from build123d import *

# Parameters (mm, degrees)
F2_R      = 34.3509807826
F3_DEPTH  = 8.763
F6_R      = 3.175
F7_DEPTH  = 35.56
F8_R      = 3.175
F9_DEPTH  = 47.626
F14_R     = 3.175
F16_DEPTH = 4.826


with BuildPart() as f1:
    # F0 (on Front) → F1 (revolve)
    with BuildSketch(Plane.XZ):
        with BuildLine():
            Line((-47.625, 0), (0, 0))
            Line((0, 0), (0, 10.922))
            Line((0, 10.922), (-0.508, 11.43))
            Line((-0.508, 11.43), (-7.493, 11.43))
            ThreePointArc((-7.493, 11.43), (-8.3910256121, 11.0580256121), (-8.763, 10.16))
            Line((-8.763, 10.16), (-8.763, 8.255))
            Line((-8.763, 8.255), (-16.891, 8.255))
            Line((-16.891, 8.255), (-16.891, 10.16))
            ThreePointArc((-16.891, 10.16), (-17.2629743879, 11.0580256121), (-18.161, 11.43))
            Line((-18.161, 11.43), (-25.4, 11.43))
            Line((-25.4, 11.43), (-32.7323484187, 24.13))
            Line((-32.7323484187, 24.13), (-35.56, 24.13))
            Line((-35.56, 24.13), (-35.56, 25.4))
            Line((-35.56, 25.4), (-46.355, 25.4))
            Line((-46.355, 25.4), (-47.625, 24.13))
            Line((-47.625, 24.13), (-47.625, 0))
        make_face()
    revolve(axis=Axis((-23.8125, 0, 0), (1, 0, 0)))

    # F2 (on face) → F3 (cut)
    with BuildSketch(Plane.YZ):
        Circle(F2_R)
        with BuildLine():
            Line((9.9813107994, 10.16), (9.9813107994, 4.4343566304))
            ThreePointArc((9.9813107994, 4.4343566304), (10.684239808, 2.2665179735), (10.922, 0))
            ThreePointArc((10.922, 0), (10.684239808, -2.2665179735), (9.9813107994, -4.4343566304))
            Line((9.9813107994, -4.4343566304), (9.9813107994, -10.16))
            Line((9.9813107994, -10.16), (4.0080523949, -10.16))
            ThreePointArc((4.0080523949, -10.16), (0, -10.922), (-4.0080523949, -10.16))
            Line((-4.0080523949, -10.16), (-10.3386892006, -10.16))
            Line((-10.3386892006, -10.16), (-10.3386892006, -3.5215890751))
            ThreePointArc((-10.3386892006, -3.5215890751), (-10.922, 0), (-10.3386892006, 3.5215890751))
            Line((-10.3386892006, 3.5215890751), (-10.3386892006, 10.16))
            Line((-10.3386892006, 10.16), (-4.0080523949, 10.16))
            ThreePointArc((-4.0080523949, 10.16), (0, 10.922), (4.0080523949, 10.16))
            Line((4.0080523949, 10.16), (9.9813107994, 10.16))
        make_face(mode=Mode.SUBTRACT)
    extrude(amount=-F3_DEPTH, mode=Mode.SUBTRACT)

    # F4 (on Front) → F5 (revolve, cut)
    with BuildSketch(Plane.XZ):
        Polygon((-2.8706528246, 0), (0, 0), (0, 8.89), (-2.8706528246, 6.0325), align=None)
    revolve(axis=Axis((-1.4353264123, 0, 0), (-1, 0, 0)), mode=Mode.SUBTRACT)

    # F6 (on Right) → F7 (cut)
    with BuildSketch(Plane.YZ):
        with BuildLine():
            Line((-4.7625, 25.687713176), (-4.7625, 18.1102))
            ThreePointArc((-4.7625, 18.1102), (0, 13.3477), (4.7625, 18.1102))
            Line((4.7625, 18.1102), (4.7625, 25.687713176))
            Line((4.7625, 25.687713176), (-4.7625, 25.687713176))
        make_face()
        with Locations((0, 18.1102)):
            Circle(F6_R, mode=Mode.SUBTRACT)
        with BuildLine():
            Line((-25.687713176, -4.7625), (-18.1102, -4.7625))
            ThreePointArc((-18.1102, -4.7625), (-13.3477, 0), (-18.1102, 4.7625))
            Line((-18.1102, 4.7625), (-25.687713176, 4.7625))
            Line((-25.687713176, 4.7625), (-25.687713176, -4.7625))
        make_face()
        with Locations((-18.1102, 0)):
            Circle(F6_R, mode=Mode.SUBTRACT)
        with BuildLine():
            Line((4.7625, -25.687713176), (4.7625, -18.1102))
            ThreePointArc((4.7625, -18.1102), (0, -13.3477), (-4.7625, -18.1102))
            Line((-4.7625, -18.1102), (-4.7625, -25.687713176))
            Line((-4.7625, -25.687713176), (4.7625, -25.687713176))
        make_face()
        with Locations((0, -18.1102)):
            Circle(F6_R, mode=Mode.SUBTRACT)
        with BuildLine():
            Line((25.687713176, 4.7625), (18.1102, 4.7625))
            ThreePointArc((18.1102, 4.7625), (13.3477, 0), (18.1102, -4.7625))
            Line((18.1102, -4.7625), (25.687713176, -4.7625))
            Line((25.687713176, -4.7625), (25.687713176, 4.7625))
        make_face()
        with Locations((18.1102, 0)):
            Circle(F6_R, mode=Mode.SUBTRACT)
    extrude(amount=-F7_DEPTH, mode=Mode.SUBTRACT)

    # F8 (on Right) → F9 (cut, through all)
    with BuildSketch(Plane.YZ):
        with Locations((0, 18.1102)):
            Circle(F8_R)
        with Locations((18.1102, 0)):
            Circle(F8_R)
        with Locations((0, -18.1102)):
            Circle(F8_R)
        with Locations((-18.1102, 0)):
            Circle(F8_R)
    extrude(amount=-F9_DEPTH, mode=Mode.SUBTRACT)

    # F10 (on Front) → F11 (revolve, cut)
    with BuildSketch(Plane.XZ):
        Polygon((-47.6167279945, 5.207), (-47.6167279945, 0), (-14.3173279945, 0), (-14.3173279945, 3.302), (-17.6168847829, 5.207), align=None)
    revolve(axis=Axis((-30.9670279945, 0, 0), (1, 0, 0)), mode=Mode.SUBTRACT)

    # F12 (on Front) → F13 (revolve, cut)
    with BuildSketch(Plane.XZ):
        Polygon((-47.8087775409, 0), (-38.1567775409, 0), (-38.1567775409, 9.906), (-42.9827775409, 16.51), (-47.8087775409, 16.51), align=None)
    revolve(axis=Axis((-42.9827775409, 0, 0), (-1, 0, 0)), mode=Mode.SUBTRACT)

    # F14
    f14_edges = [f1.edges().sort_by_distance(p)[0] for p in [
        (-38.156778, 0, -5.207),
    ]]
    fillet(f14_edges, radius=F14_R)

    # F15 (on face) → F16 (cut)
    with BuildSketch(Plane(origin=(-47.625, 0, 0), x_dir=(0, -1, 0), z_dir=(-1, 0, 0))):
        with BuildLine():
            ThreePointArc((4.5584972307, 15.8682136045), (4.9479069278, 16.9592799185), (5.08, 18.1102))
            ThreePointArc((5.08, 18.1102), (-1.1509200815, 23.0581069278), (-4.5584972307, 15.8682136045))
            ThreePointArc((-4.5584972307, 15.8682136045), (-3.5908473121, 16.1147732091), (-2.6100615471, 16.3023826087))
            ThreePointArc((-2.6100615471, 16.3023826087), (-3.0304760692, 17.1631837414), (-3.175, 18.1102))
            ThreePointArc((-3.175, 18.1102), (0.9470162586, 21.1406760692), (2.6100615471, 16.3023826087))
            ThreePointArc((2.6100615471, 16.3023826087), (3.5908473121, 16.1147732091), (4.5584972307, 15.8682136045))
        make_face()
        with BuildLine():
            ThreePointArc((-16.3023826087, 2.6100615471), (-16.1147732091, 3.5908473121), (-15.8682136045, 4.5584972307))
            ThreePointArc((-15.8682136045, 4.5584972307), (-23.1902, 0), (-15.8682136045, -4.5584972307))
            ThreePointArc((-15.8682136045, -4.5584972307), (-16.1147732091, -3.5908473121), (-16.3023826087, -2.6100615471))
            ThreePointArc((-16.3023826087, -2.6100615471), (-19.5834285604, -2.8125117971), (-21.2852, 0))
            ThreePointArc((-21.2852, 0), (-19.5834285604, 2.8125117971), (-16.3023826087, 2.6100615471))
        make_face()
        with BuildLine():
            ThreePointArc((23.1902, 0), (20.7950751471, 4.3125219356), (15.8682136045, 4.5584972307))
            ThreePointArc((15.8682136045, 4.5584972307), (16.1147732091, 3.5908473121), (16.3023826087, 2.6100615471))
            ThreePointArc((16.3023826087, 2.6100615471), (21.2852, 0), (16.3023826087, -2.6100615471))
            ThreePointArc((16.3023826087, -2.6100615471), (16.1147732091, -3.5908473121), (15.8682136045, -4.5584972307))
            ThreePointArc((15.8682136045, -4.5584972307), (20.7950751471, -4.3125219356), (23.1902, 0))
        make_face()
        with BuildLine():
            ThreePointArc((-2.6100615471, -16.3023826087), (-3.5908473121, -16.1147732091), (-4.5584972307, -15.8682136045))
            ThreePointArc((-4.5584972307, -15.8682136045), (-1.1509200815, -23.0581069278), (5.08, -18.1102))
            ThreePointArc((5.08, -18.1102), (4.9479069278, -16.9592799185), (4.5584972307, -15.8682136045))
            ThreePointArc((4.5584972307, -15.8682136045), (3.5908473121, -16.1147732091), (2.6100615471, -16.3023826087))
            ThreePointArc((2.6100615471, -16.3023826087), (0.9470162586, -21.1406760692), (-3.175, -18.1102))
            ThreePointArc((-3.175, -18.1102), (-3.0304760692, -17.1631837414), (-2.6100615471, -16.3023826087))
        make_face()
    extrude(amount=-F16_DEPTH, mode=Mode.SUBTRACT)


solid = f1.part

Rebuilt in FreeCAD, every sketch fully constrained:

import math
import FreeCAD as App
import Part
import Sketcher

V = App.Vector
Q = App.Units.Quantity


def edges_at(feature, points):
    """Names of the edges that pass closest to the given points."""
    edges = feature.Shape.Edges
    near = lambda p: min(range(len(edges)), key=lambda i: edges[i].distToShape(Part.Vertex(*p))[0])
    return sorted({f"Edge{near(p) + 1}" for p in points})


def add_polygon(sketch, points):
    """Adds a closed chain of lines whose ends are joined by coincident constraints."""
    first, n = sketch.GeometryCount, len(points)
    for a, b in zip(points, points[1:] + points[:1]):
        sketch.addGeometry(Part.LineSegment(App.Vector(*a, 0), App.Vector(*b, 0)), False)
    for i in range(n):
        sketch.addConstraint(Sketcher.Constraint("Coincident", first + i, 2, first + (i + 1) % n, 1))

doc = App.newDocument("Part")
params = doc.addObject("Spreadsheet::Sheet", "Params")
for row, (alias, value) in enumerate([
    ("sketch1_radius", "0.05 in"),
    ("sketch1_width", "0.32 in"),
    ("sketch1_height", "0.43 in"),
    ("sketch1_height2", "0.05 in"),
    ("sketch1_width2", "1.875 in"),
    ("revolution_angle", "360 deg"),
    ("sketch2_radius", "0.43 in"),
    ("pocket1_length", "0.345 in"),
    ("sketch3_height", "0.35 in"),
    ("groove_angle", "360 deg"),
    ("sketch4_diameter", "0.25 in"),
    ("sketch4_radius", "0.1875 in"),
    ("pocket2_length", "1.4 in"),
    ("sketch5_diameter", "0.25 in"),
    ("sketch6_height", "0.13 in"),
    ("sketch6_length", "0.15 in"),
    ("sketch6_width", "1.311 in"),
    ("groove2_angle", "360 deg"),
    ("sketch7_width", "0.38 in"),
    ("sketch7_width2", "0.19 in"),
    ("sketch7_height", "0.39 in"),
    ("sketch7_height2", "0.65 in"),
    ("groove3_angle", "360 deg"),
    ("fillet_radius", "0.125 in"),
    ("sketch8_radius", "0.2 in"),
    ("sketch8_radius2", "0.65 in"),
    ("sketch8_radius3", "0.125 in"),
    ("pocket4_length", "0.19 in"),
], start=1):
    params.set(f"A{row}", alias)
    params.set(f"B{row}", "=" + value)
    params.setAlias(f"B{row}", alias)

body = doc.addObject("PartDesign::Body", "Body")

sketch1 = body.newObject("Sketcher::SketchObject", "Sketch")
sketch1.AttachmentSupport = (doc.getObject("XZ_Plane"), [""])
sketch1.MapMode = "FlatFace"
sketch1.addGeometry(Part.LineSegment(V(-47.625, 0, 0), V(0, 0, 0)), False)
sketch1.addGeometry(Part.LineSegment(V(0, 0, 0), V(0, 10.922, 0)), False)
sketch1.addGeometry(Part.LineSegment(V(0, 10.922, 0), V(-0.508, 11.43, 0)), False)
sketch1.addGeometry(Part.LineSegment(V(-0.508, 11.43, 0), V(-7.493, 11.43, 0)), False)
sketch1.addGeometry(Part.ArcOfCircle(Part.Circle(V(-7.493, 10.16, 0), V(0, 0, 1), 1.27), math.radians(90), math.radians(180)), False)
sketch1.addGeometry(Part.LineSegment(V(-8.763, 10.16, 0), V(-8.763, 8.255, 0)), False)
sketch1.addGeometry(Part.LineSegment(V(-8.763, 8.255, 0), V(-16.891, 8.255, 0)), False)
sketch1.addGeometry(Part.LineSegment(V(-16.891, 8.255, 0), V(-16.891, 10.16, 0)), False)
sketch1.addGeometry(Part.ArcOfCircle(Part.Circle(V(-18.161, 10.16, 0), V(0, 0, 1), 1.27), math.radians(0), math.radians(90)), False)
sketch1.addGeometry(Part.LineSegment(V(-18.161, 11.43, 0), V(-25.4, 11.43, 0)), False)
sketch1.addGeometry(Part.LineSegment(V(-25.4, 11.43, 0), V(-32.732348, 24.13, 0)), False)
sketch1.addGeometry(Part.LineSegment(V(-32.732348, 24.13, 0), V(-35.56, 24.13, 0)), False)
sketch1.addGeometry(Part.LineSegment(V(-35.56, 24.13, 0), V(-35.56, 25.4, 0)), False)
sketch1.addGeometry(Part.LineSegment(V(-35.56, 25.4, 0), V(-46.355, 25.4, 0)), False)
sketch1.addGeometry(Part.LineSegment(V(-46.355, 25.4, 0), V(-47.625, 24.13, 0)), False)
sketch1.addGeometry(Part.LineSegment(V(-47.625, 24.13, 0), V(-47.625, 0, 0)), False)
sketch1.addConstraint(Sketcher.Constraint("Coincident", 0, 2, 1, 1))
sketch1.addConstraint(Sketcher.Constraint("Coincident", 1, 2, 2, 1))
sketch1.addConstraint(Sketcher.Constraint("Coincident", 2, 2, 3, 1))
sketch1.addConstraint(Sketcher.Constraint("Tangent", 3, 2, 4, 1))
sketch1.addConstraint(Sketcher.Constraint("Tangent", 4, 2, 5, 1))
sketch1.addConstraint(Sketcher.Constraint("Coincident", 5, 2, 6, 1))
sketch1.addConstraint(Sketcher.Constraint("Coincident", 6, 2, 7, 1))
sketch1.addConstraint(Sketcher.Constraint("Tangent", 7, 2, 8, 1))
sketch1.addConstraint(Sketcher.Constraint("Tangent", 8, 2, 9, 1))
sketch1.addConstraint(Sketcher.Constraint("Coincident", 9, 2, 10, 1))
sketch1.addConstraint(Sketcher.Constraint("Coincident", 10, 2, 11, 1))
sketch1.addConstraint(Sketcher.Constraint("Coincident", 11, 2, 12, 1))
sketch1.addConstraint(Sketcher.Constraint("Coincident", 12, 2, 13, 1))
sketch1.addConstraint(Sketcher.Constraint("Coincident", 13, 2, 14, 1))
sketch1.addConstraint(Sketcher.Constraint("Coincident", 14, 2, 15, 1))
sketch1.addConstraint(Sketcher.Constraint("Coincident", 15, 2, 0, 1))
sketch1.addConstraint(Sketcher.Constraint("Horizontal", 0))
sketch1.addConstraint(Sketcher.Constraint("Vertical", 1))
sketch1.addConstraint(Sketcher.Constraint("Horizontal", 3))
sketch1.addConstraint(Sketcher.Constraint("Vertical", 5))
sketch1.addConstraint(Sketcher.Constraint("Horizontal", 6))
sketch1.addConstraint(Sketcher.Constraint("Vertical", 7))
sketch1.addConstraint(Sketcher.Constraint("Horizontal", 9))
sketch1.addConstraint(Sketcher.Constraint("Horizontal", 11))
sketch1.addConstraint(Sketcher.Constraint("Vertical", 12))
sketch1.addConstraint(Sketcher.Constraint("Horizontal", 13))
sketch1.addConstraint(Sketcher.Constraint("Vertical", 15))
sketch1.addConstraint(Sketcher.Constraint("Coincident", 0, 2, -1, 1))
sketch1.addConstraint(Sketcher.Constraint("Equal", 4, 8))
sketch1.addConstraint(Sketcher.Constraint("Perpendicular", 2, 14))
sketch1.addConstraint(Sketcher.Constraint("Horizontal", 4, 3, 8, 3))
sketch1.addConstraint(Sketcher.Constraint("Horizontal", 11, 2, 14, 2))
sketch1.addConstraint(Sketcher.Constraint("Radius", 4, Q("0.05 in")))
sketch1.addConstraint(Sketcher.Constraint("DistanceX", 9, 2, -1, 1, Q("1 in")))
sketch1.addConstraint(Sketcher.Constraint("DistanceY", -1, 1, 12, 2, Q("1 in")))
sketch1.addConstraint(Sketcher.Constraint("Angle", 2, Q("135 deg")))
sketch1.addConstraint(Sketcher.Constraint("Angle", 10, Q("120 deg")))
sketch1.addConstraint(Sketcher.Constraint("DistanceX", 6, 2, 6, 1, Q("0.32 in")))
sketch1.addConstraint(Sketcher.Constraint("DistanceY", 1, 1, 1, 2, Q("0.43 in")))
sketch1.addConstraint(Sketcher.Constraint("DistanceY", 12, 1, 12, 2, Q("0.05 in")))
sketch1.addConstraint(Sketcher.Constraint("DistanceY", -1, 1, 4, 3, Q("0.4 in")))
sketch1.addConstraint(Sketcher.Constraint("DistanceX", 11, 2, -1, 1, Q("1.4 in")))
sketch1.addConstraint(Sketcher.Constraint("DistanceX", 0, 1, 0, 2, Q("1.875 in")))
sketch1.addConstraint(Sketcher.Constraint("DistanceX", 3, 2, 3, 1, Q("0.275 in")))
sketch1.addConstraint(Sketcher.Constraint("DistanceY", 5, 2, 5, 1, Q("0.075 in")))
sketch1.setExpression("Constraints[32]", "Params.sketch1_radius")
sketch1.setExpression("Constraints[37]", "Params.sketch1_width")
sketch1.setExpression("Constraints[38]", "Params.sketch1_height")
sketch1.setExpression("Constraints[39]", "Params.sketch1_height2")
sketch1.setExpression("Constraints[42]", "Params.sketch1_width2")
revolution = body.newObject("PartDesign::Revolution", "Revolution")
revolution.Profile = sketch1
revolution.ReferenceAxis = (sketch1, ["H_Axis"])
revolution.setExpression("Angle", "Params.revolution_angle")

sketch2 = body.newObject("Sketcher::SketchObject", "Sketch001")
sketch2.AttachmentSupport = (doc.getObject("YZ_Plane"), [""])
sketch2.MapMode = "FlatFace"
sketch2.addGeometry(Part.Circle(V(0, 0, 0), V(0, 0, 1), 34.350981), False)
sketch2.addGeometry(Part.LineSegment(V(4.008052, 10.16, 0), V(9.981311, 10.16, 0)), False)
sketch2.addGeometry(Part.LineSegment(V(9.981311, 10.16, 0), V(9.981311, 4.434357, 0)), False)
sketch2.addGeometry(Part.ArcOfCircle(Part.Circle(V(0, 0, 0), V(0, 0, 1), 10.922), math.radians(0), math.radians(23.953949)), False)
sketch2.addGeometry(Part.ArcOfCircle(Part.Circle(V(0, 0, 0), V(0, 0, 1), 10.922), math.radians(-23.953949), math.radians(0)), False)
sketch2.addGeometry(Part.LineSegment(V(9.981311, -4.434357, 0), V(9.981311, -10.16, 0)), False)
sketch2.addGeometry(Part.LineSegment(V(9.981311, -10.16, 0), V(4.008052, -10.16, 0)), False)
sketch2.addGeometry(Part.ArcOfCircle(Part.Circle(V(0, 0, 0), V(0, 0, 1), 10.922), math.radians(-111.528904), math.radians(-68.471096)), False)
sketch2.addGeometry(Part.LineSegment(V(-4.008052, -10.16, 0), V(-10.338689, -10.16, 0)), False)
sketch2.addGeometry(Part.LineSegment(V(-10.338689, -10.16, 0), V(-10.338689, -3.521589, 0)), False)
sketch2.addGeometry(Part.ArcOfCircle(Part.Circle(V(0, 0, 0), V(0, 0, 1), 10.922), math.radians(161.190007), math.radians(198.809993)), False)
sketch2.addGeometry(Part.LineSegment(V(-10.338689, 3.521589, 0), V(-10.338689, 10.16, 0)), False)
sketch2.addGeometry(Part.LineSegment(V(-10.338689, 10.16, 0), V(-4.008052, 10.16, 0)), False)
sketch2.addGeometry(Part.ArcOfCircle(Part.Circle(V(0, 0, 0), V(0, 0, 1), 10.922), math.radians(68.471096), math.radians(111.528904)), False)
sketch2.addConstraint(Sketcher.Constraint("Coincident", 1, 2, 2, 1))
sketch2.addConstraint(Sketcher.Constraint("Coincident", 2, 2, 3, 2))
sketch2.addConstraint(Sketcher.Constraint("Tangent", 3, 1, 4, 2))
sketch2.addConstraint(Sketcher.Constraint("Coincident", 4, 1, 5, 1))
sketch2.addConstraint(Sketcher.Constraint("Coincident", 5, 2, 6, 1))
sketch2.addConstraint(Sketcher.Constraint("Coincident", 6, 2, 7, 2))
sketch2.addConstraint(Sketcher.Constraint("Coincident", 7, 1, 8, 1))
sketch2.addConstraint(Sketcher.Constraint("Coincident", 8, 2, 9, 1))
sketch2.addConstraint(Sketcher.Constraint("Coincident", 9, 2, 10, 2))
sketch2.addConstraint(Sketcher.Constraint("Coincident", 10, 1, 11, 1))
sketch2.addConstraint(Sketcher.Constraint("Coincident", 11, 2, 12, 1))
sketch2.addConstraint(Sketcher.Constraint("Coincident", 12, 2, 13, 2))
sketch2.addConstraint(Sketcher.Constraint("Coincident", 13, 1, 1, 1))
sketch2.addConstraint(Sketcher.Constraint("Horizontal", 1))
sketch2.addConstraint(Sketcher.Constraint("Vertical", 2))
sketch2.addConstraint(Sketcher.Constraint("Vertical", 5))
sketch2.addConstraint(Sketcher.Constraint("Horizontal", 6))
sketch2.addConstraint(Sketcher.Constraint("Horizontal", 8))
sketch2.addConstraint(Sketcher.Constraint("Vertical", 9))
sketch2.addConstraint(Sketcher.Constraint("Vertical", 11))
sketch2.addConstraint(Sketcher.Constraint("Horizontal", 12))
sketch2.addConstraint(Sketcher.Constraint("Coincident", 0, 3, -1, 1))
sketch2.addConstraint(Sketcher.Constraint("Coincident", 3, 3, -1, 1))
sketch2.addConstraint(Sketcher.Constraint("Coincident", 7, 3, -1, 1))
sketch2.addConstraint(Sketcher.Constraint("Coincident", 10, 3, -1, 1))
sketch2.addConstraint(Sketcher.Constraint("Coincident", 13, 3, -1, 1))
sketch2.addConstraint(Sketcher.Constraint("Equal", 3, 4))
sketch2.addConstraint(Sketcher.Constraint("Equal", 4, 7))
sketch2.addConstraint(Sketcher.Constraint("Equal", 7, 10))
sketch2.addConstraint(Sketcher.Constraint("Equal", 10, 13))
sketch2.addConstraint(Sketcher.Constraint("Symmetric", 1, 2, 5, 2, -1))
sketch2.addConstraint(Sketcher.Constraint("Symmetric", 8, 2, 11, 2, -1))
sketch2.addConstraint(Sketcher.Constraint("PointOnObject", 3, 1, -1))
sketch2.addConstraint(Sketcher.Constraint("Horizontal", 6, 2, 7, 1))
sketch2.addConstraint(Sketcher.Constraint("Radius", 3, Q("0.43 in")))
sketch2.addConstraint(Sketcher.Constraint("DistanceY", -1, 1, 1, 2, Q("0.4 in")))
sketch2.addConstraint(Sketcher.Constraint("Diameter", 0, 68.701962))
sketch2.addConstraint(Sketcher.Constraint("DistanceX", 1, 1, 1, 2, 5.973258))
sketch2.addConstraint(Sketcher.Constraint("DistanceY", 9, 1, 9, 2, 6.638411))
sketch2.setExpression("Constraints[34]", "Params.sketch2_radius")
pocket1 = body.newObject("PartDesign::Pocket", "Pocket")
pocket1.Profile = sketch2
pocket1.setExpression("Length", "Params.pocket1_length")

sketch3 = body.newObject("Sketcher::SketchObject", "Sketch002")
sketch3.AttachmentSupport = (doc.getObject("XZ_Plane"), [""])
sketch3.MapMode = "FlatFace"
add_polygon(sketch3, [(-2.870653, 0), (0, 0), (0, 8.89), (-2.870653, 6.0325)])
sketch3.addConstraint(Sketcher.Constraint("Horizontal", 0))
sketch3.addConstraint(Sketcher.Constraint("Vertical", 1))
sketch3.addConstraint(Sketcher.Constraint("Vertical", 3))
sketch3.addConstraint(Sketcher.Constraint("Coincident", 0, 2, -1, 1))
sketch3.addConstraint(Sketcher.Constraint("DistanceY", 1, 1, 1, 2, Q("0.35 in")))
sketch3.addConstraint(Sketcher.Constraint("DistanceY", 3, 2, 3, 1, Q("0.2375 in")))
sketch3.addConstraint(Sketcher.Constraint("DistanceX", 0, 1, 0, 2, 2.870653))
sketch3.setExpression("Constraints[8]", "Params.sketch3_height")
groove = body.newObject("PartDesign::Groove", "Groove")
groove.Profile = sketch3
groove.ReferenceAxis = (sketch3, ["H_Axis"])
groove.setExpression("Angle", "Params.groove_angle")

sketch4 = body.newObject("Sketcher::SketchObject", "Sketch003")
sketch4.AttachmentSupport = (doc.getObject("YZ_Plane"), [""])
sketch4.MapMode = "FlatFace"
sketch4.addGeometry(Part.LineSegment(V(-4.7625, 25.687713, 0), V(-4.7625, 18.1102, 0)), False)
sketch4.addGeometry(Part.ArcOfCircle(Part.Circle(V(0, 18.1102, 0), V(0, 0, 1), 4.7625), math.radians(180), math.radians(360)), False)
sketch4.addGeometry(Part.LineSegment(V(4.7625, 18.1102, 0), V(4.7625, 25.687713, 0)), False)
sketch4.addGeometry(Part.LineSegment(V(4.7625, 25.687713, 0), V(-4.7625, 25.687713, 0)), False)
sketch4.addGeometry(Part.Circle(V(0, 18.1102, 0), V(0, 0, 1), 3.175), False)
sketch4.addGeometry(Part.LineSegment(V(-25.687713, -4.7625, 0), V(-18.1102, -4.7625, 0)), False)
sketch4.addGeometry(Part.ArcOfCircle(Part.Circle(V(-18.1102, 0, 0), V(0, 0, 1), 4.7625), math.radians(-90), math.radians(90)), False)
sketch4.addGeometry(Part.LineSegment(V(-18.1102, 4.7625, 0), V(-25.687713, 4.7625, 0)), False)
sketch4.addGeometry(Part.LineSegment(V(-25.687713, 4.7625, 0), V(-25.687713, -4.7625, 0)), False)
sketch4.addGeometry(Part.Circle(V(-18.1102, 0, 0), V(0, 0, 1), 3.175), False)
sketch4.addGeometry(Part.LineSegment(V(4.7625, -25.687713, 0), V(4.7625, -18.1102, 0)), False)
sketch4.addGeometry(Part.ArcOfCircle(Part.Circle(V(0, -18.1102, 0), V(0, 0, 1), 4.7625), math.radians(0), math.radians(180)), False)
sketch4.addGeometry(Part.LineSegment(V(-4.7625, -18.1102, 0), V(-4.7625, -25.687713, 0)), False)
sketch4.addGeometry(Part.LineSegment(V(-4.7625, -25.687713, 0), V(4.7625, -25.687713, 0)), False)
sketch4.addGeometry(Part.Circle(V(0, -18.1102, 0), V(0, 0, 1), 3.175), False)
sketch4.addGeometry(Part.LineSegment(V(25.687713, 4.7625, 0), V(18.1102, 4.7625, 0)), False)
sketch4.addGeometry(Part.ArcOfCircle(Part.Circle(V(18.1102, 0, 0), V(0, 0, 1), 4.7625), math.radians(90), math.radians(270)), False)
sketch4.addGeometry(Part.LineSegment(V(18.1102, -4.7625, 0), V(25.687713, -4.7625, 0)), False)
sketch4.addGeometry(Part.LineSegment(V(25.687713, -4.7625, 0), V(25.687713, 4.7625, 0)), False)
sketch4.addGeometry(Part.Circle(V(18.1102, 0, 0), V(0, 0, 1), 3.175), False)
sketch4.addConstraint(Sketcher.Constraint("Tangent", 0, 2, 1, 1))
sketch4.addConstraint(Sketcher.Constraint("Tangent", 1, 2, 2, 1))
sketch4.addConstraint(Sketcher.Constraint("Coincident", 2, 2, 3, 1))
sketch4.addConstraint(Sketcher.Constraint("Coincident", 3, 2, 0, 1))
sketch4.addConstraint(Sketcher.Constraint("Tangent", 5, 2, 6, 1))
sketch4.addConstraint(Sketcher.Constraint("Tangent", 6, 2, 7, 1))
sketch4.addConstraint(Sketcher.Constraint("Coincident", 7, 2, 8, 1))
sketch4.addConstraint(Sketcher.Constraint("Coincident", 8, 2, 5, 1))
sketch4.addConstraint(Sketcher.Constraint("Tangent", 10, 2, 11, 1))
sketch4.addConstraint(Sketcher.Constraint("Tangent", 11, 2, 12, 1))
sketch4.addConstraint(Sketcher.Constraint("Coincident", 12, 2, 13, 1))
sketch4.addConstraint(Sketcher.Constraint("Coincident", 13, 2, 10, 1))
sketch4.addConstraint(Sketcher.Constraint("Tangent", 15, 2, 16, 1))
sketch4.addConstraint(Sketcher.Constraint("Tangent", 16, 2, 17, 1))
sketch4.addConstraint(Sketcher.Constraint("Coincident", 17, 2, 18, 1))
sketch4.addConstraint(Sketcher.Constraint("Coincident", 18, 2, 15, 1))
sketch4.addConstraint(Sketcher.Constraint("Vertical", 0))
sketch4.addConstraint(Sketcher.Constraint("Vertical", 2))
sketch4.addConstraint(Sketcher.Constraint("Horizontal", 3))
sketch4.addConstraint(Sketcher.Constraint("Horizontal", 5))
sketch4.addConstraint(Sketcher.Constraint("Horizontal", 7))
sketch4.addConstraint(Sketcher.Constraint("Vertical", 8))
sketch4.addConstraint(Sketcher.Constraint("Vertical", 10))
sketch4.addConstraint(Sketcher.Constraint("Vertical", 12))
sketch4.addConstraint(Sketcher.Constraint("Horizontal", 13))
sketch4.addConstraint(Sketcher.Constraint("Horizontal", 15))
sketch4.addConstraint(Sketcher.Constraint("Horizontal", 17))
sketch4.addConstraint(Sketcher.Constraint("Vertical", 18))
sketch4.addConstraint(Sketcher.Constraint("Coincident", 4, 3, 1, 3))
sketch4.addConstraint(Sketcher.Constraint("Coincident", 9, 3, 6, 3))
sketch4.addConstraint(Sketcher.Constraint("Coincident", 14, 3, 11, 3))
sketch4.addConstraint(Sketcher.Constraint("Coincident", 19, 3, 16, 3))
sketch4.addConstraint(Sketcher.Constraint("Equal", 1, 6))
sketch4.addConstraint(Sketcher.Constraint("Equal", 4, 9))
sketch4.addConstraint(Sketcher.Constraint("Equal", 6, 11))
sketch4.addConstraint(Sketcher.Constraint("Equal", 9, 14))
sketch4.addConstraint(Sketcher.Constraint("Equal", 11, 16))
sketch4.addConstraint(Sketcher.Constraint("Equal", 14, 19))
sketch4.addConstraint(Sketcher.Constraint("Symmetric", 1, 3, 11, 3, -1, 1))
sketch4.addConstraint(Sketcher.Constraint("Symmetric", 6, 3, 16, 3, -1, 1))
sketch4.addConstraint(Sketcher.Constraint("Symmetric", 8, 2, 17, 2, -2))
sketch4.addConstraint(Sketcher.Constraint("Symmetric", 3, 2, 12, 2, -1))
sketch4.addConstraint(Sketcher.Constraint("Equal", 17, 0))
sketch4.addConstraint(Sketcher.Constraint("Diameter", 4, Q("0.25 in")))
sketch4.addConstraint(Sketcher.Constraint("Radius", 1, Q("0.1875 in")))
sketch4.addConstraint(Sketcher.Constraint("DistanceY", -1, 1, 1, 3, Q("0.713 in")))
sketch4.addConstraint(Sketcher.Constraint("DistanceX", 6, 3, -1, 1, Q("0.713 in")))
sketch4.addConstraint(Sketcher.Constraint("DistanceX", 5, 1, 5, 2, 7.577513))
sketch4.setExpression("Constraints[43]", "Params.sketch4_diameter")
sketch4.setExpression("Constraints[44]", "Params.sketch4_radius")
pocket2 = body.newObject("PartDesign::Pocket", "Pocket001")
pocket2.Profile = sketch4
pocket2.setExpression("Length", "Params.pocket2_length")

sketch5 = body.newObject("Sketcher::SketchObject", "Sketch004")
sketch5.AttachmentSupport = (doc.getObject("YZ_Plane"), [""])
sketch5.MapMode = "FlatFace"
sketch5.addGeometry(Part.Circle(V(0, 18.1102, 0), V(0, 0, 1), 3.175), False)
sketch5.addGeometry(Part.Circle(V(18.1102, 0, 0), V(0, 0, 1), 3.175), False)
sketch5.addGeometry(Part.Circle(V(0, -18.1102, 0), V(0, 0, 1), 3.175), False)
sketch5.addGeometry(Part.Circle(V(-18.1102, 0, 0), V(0, 0, 1), 3.175), False)
sketch5.addConstraint(Sketcher.Constraint("Equal", 0, 1))
sketch5.addConstraint(Sketcher.Constraint("Equal", 1, 2))
sketch5.addConstraint(Sketcher.Constraint("Equal", 2, 3))
sketch5.addConstraint(Sketcher.Constraint("Symmetric", 0, 3, 2, 3, -1, 1))
sketch5.addConstraint(Sketcher.Constraint("Symmetric", 1, 3, 3, 3, -1, 1))
sketch5.addConstraint(Sketcher.Constraint("PointOnObject", 0, 3, -2))
sketch5.addConstraint(Sketcher.Constraint("PointOnObject", 1, 3, -1))
sketch5.addConstraint(Sketcher.Constraint("Diameter", 0, Q("0.25 in")))
sketch5.addConstraint(Sketcher.Constraint("DistanceY", -1, 1, 0, 3, Q("0.713 in")))
sketch5.addConstraint(Sketcher.Constraint("DistanceX", -1, 1, 1, 3, Q("0.713 in")))
sketch5.setExpression("Constraints[7]", "Params.sketch5_diameter")
pocket3 = body.newObject("PartDesign::Pocket", "Pocket002")
pocket3.Profile = sketch5
pocket3.Type = "ThroughAll"

sketch6 = body.newObject("Sketcher::SketchObject", "Sketch005")
sketch6.AttachmentSupport = (doc.getObject("XZ_Plane"), [""])
sketch6.MapMode = "FlatFace"
add_polygon(sketch6, [(-47.616728, 5.207), (-47.616728, 0), (-14.317328, 0), (-14.317328, 3.302), (-17.616885, 5.207)])
sketch6.addConstraint(Sketcher.Constraint("Vertical", 0))
sketch6.addConstraint(Sketcher.Constraint("Horizontal", 1))
sketch6.addConstraint(Sketcher.Constraint("Vertical", 2))
sketch6.addConstraint(Sketcher.Constraint("Horizontal", 4))
sketch6.addConstraint(Sketcher.Constraint("PointOnObject", 0, 2, -1))
sketch6.addConstraint(Sketcher.Constraint("Angle", 3, Q("150 deg")))
sketch6.addConstraint(Sketcher.Constraint("DistanceY", 2, 1, 2, 2, Q("0.13 in")))
sketch6.addConstraint(Sketcher.Constraint("Distance", 3, Q("0.15 in")))
sketch6.addConstraint(Sketcher.Constraint("DistanceX", 1, 1, 1, 2, Q("1.311 in")))
sketch6.addConstraint(Sketcher.Constraint("DistanceX", 0, 2, -1, 1, 47.616728))
sketch6.setExpression("Constraints[11]", "Params.sketch6_height")
sketch6.setExpression("Constraints[12]", "Params.sketch6_length")
sketch6.setExpression("Constraints[13]", "Params.sketch6_width")
groove2 = body.newObject("PartDesign::Groove", "Groove001")
groove2.Profile = sketch6
groove2.ReferenceAxis = (sketch6, ["H_Axis"])
groove2.setExpression("Angle", "Params.groove2_angle")

sketch7 = body.newObject("Sketcher::SketchObject", "Sketch006")
sketch7.AttachmentSupport = (doc.getObject("XZ_Plane"), [""])
sketch7.MapMode = "FlatFace"
add_polygon(sketch7, [(-47.808778, 0), (-38.156778, 0), (-38.156778, 9.906), (-42.982778, 16.51), (-47.808778, 16.51)])
sketch7.addConstraint(Sketcher.Constraint("Horizontal", 0))
sketch7.addConstraint(Sketcher.Constraint("Vertical", 1))
sketch7.addConstraint(Sketcher.Constraint("Horizontal", 3))
sketch7.addConstraint(Sketcher.Constraint("Vertical", 4))
sketch7.addConstraint(Sketcher.Constraint("PointOnObject", 0, 2, -1))
sketch7.addConstraint(Sketcher.Constraint("DistanceX", 0, 1, 0, 2, Q("0.38 in")))
sketch7.addConstraint(Sketcher.Constraint("DistanceX", 3, 2, 3, 1, Q("0.19 in")))
sketch7.addConstraint(Sketcher.Constraint("DistanceY", 1, 1, 1, 2, Q("0.39 in")))
sketch7.addConstraint(Sketcher.Constraint("DistanceY", 4, 2, 4, 1, Q("0.65 in")))
sketch7.addConstraint(Sketcher.Constraint("DistanceX", 0, 2, -1, 1, 38.156778))
sketch7.setExpression("Constraints[10]", "Params.sketch7_width")
sketch7.setExpression("Constraints[11]", "Params.sketch7_width2")
sketch7.setExpression("Constraints[12]", "Params.sketch7_height")
sketch7.setExpression("Constraints[13]", "Params.sketch7_height2")
groove3 = body.newObject("PartDesign::Groove", "Groove002")
groove3.Profile = sketch7
groove3.ReferenceAxis = (sketch7, ["H_Axis"])
groove3.setExpression("Angle", "Params.groove3_angle")
doc.recompute()

fillet = body.newObject("PartDesign::Fillet", "Fillet")
fillet.Base = (groove3, edges_at(groove3, [(-38.157, 0, -5.207)]))
fillet.setExpression("Radius", "Params.fillet_radius")

sketch8 = body.newObject("Sketcher::SketchObject", "Sketch007")
sketch8.AttachmentSupport = (doc.getObject("YZ_Plane"), [""])
sketch8.MapMode = "FlatFace"
sketch8.AttachmentOffset = App.Placement(V(0, 0, -1.875 * 25.4), App.Rotation())
sketch8.addGeometry(Part.ArcOfCircle(Part.Circle(V(0, 18.1102, 0), V(0, 0, 1), 5.08), math.radians(180), math.radians(206.189148)), False)
sketch8.addGeometry(Part.ArcOfCircle(Part.Circle(V(0, 18.1102, 0), V(0, 0, 1), 5.08), math.radians(-26.189148), math.radians(180)), False)
sketch8.addGeometry(Part.ArcOfCircle(Part.Circle(V(0, 0, 0), V(0, 0, 1), 16.51), math.radians(73.972111), math.radians(80.903965)), False)
sketch8.addGeometry(Part.ArcOfCircle(Part.Circle(V(0, 18.1102, 0), V(0, 0, 1), 3.175), math.radians(-34.70779), math.radians(0)), False)
sketch8.addGeometry(Part.ArcOfCircle(Part.Circle(V(0, 18.1102, 0), V(0, 0, 1), 3.175), math.radians(0), math.radians(214.70779)), False)
sketch8.addGeometry(Part.ArcOfCircle(Part.Circle(V(0, 0, 0), V(0, 0, 1), 16.51), math.radians(99.096035), math.radians(106.027889)), False)
sketch8.addGeometry(Part.ArcOfCircle(Part.Circle(V(0, 0, 0), V(0, 0, 1), 16.51), math.radians(9.096035), math.radians(16.027889)), False)
sketch8.addGeometry(Part.ArcOfCircle(Part.Circle(V(18.1102, 0, 0), V(0, 0, 1), 5.08), math.radians(-116.189148), math.radians(116.189148)), False)
sketch8.addGeometry(Part.ArcOfCircle(Part.Circle(V(0, 0, 0), V(0, 0, 1), 16.51), math.radians(-16.027889), math.radians(-9.096035)), False)
sketch8.addGeometry(Part.ArcOfCircle(Part.Circle(V(18.1102, 0, 0), V(0, 0, 1), 3.175), math.radians(-124.70779), math.radians(0)), False)
sketch8.addGeometry(Part.ArcOfCircle(Part.Circle(V(18.1102, 0, 0), V(0, 0, 1), 3.175), math.radians(0), math.radians(124.70779)), False)
sketch8.addGeometry(Part.ArcOfCircle(Part.Circle(V(-18.1102, 0, 0), V(0, 0, 1), 5.08), math.radians(63.810852), math.radians(180)), False)
sketch8.addGeometry(Part.ArcOfCircle(Part.Circle(V(0, 0, 0), V(0, 0, 1), 16.51), math.radians(163.972111), math.radians(170.903965)), False)
sketch8.addGeometry(Part.ArcOfCircle(Part.Circle(V(-18.1102, 0, 0), V(0, 0, 1), 3.175), math.radians(55.29221), math.radians(304.70779)), False)
sketch8.addGeometry(Part.ArcOfCircle(Part.Circle(V(0, 0, 0), V(0, 0, 1), 16.51), math.radians(-170.903965), math.radians(-163.972111)), False)
sketch8.addGeometry(Part.ArcOfCircle(Part.Circle(V(-18.1102, 0, 0), V(0, 0, 1), 5.08), math.radians(180), math.radians(296.189148)), False)
sketch8.addGeometry(Part.ArcOfCircle(Part.Circle(V(0, 0, 0), V(0, 0, 1), 16.51), math.radians(-80.903965), math.radians(-73.972111)), False)
sketch8.addGeometry(Part.ArcOfCircle(Part.Circle(V(0, -18.1102, 0), V(0, 0, 1), 5.08), math.radians(180), math.radians(386.189148)), False)
sketch8.addGeometry(Part.ArcOfCircle(Part.Circle(V(0, -18.1102, 0), V(0, 0, 1), 5.08), math.radians(153.810852), math.radians(180)), False)
sketch8.addGeometry(Part.ArcOfCircle(Part.Circle(V(0, 0, 0), V(0, 0, 1), 16.51), math.radians(-106.027889), math.radians(-99.096035)), False)
sketch8.addGeometry(Part.ArcOfCircle(Part.Circle(V(0, -18.1102, 0), V(0, 0, 1), 3.175), math.radians(145.29221), math.radians(360)), False)
sketch8.addGeometry(Part.ArcOfCircle(Part.Circle(V(0, -18.1102, 0), V(0, 0, 1), 3.175), math.radians(0), math.radians(34.70779)), False)
sketch8.addConstraint(Sketcher.Constraint("Tangent", 0, 1, 1, 2))
sketch8.addConstraint(Sketcher.Constraint("Coincident", 1, 1, 2, 1))
sketch8.addConstraint(Sketcher.Constraint("Coincident", 2, 2, 3, 1))
sketch8.addConstraint(Sketcher.Constraint("Tangent", 3, 2, 4, 1))
sketch8.addConstraint(Sketcher.Constraint("Coincident", 4, 2, 5, 1))
sketch8.addConstraint(Sketcher.Constraint("Coincident", 5, 2, 0, 2))
sketch8.addConstraint(Sketcher.Constraint("Coincident", 6, 2, 7, 2))
sketch8.addConstraint(Sketcher.Constraint("Coincident", 7, 1, 8, 1))
sketch8.addConstraint(Sketcher.Constraint("Coincident", 8, 2, 9, 1))
sketch8.addConstraint(Sketcher.Constraint("Tangent", 9, 2, 10, 1))
sketch8.addConstraint(Sketcher.Constraint("Coincident", 10, 2, 6, 1))
sketch8.addConstraint(Sketcher.Constraint("Coincident", 11, 1, 12, 1))
sketch8.addConstraint(Sketcher.Constraint("Coincident", 12, 2, 13, 1))
sketch8.addConstraint(Sketcher.Constraint("Coincident", 13, 2, 14, 1))
sketch8.addConstraint(Sketcher.Constraint("Coincident", 14, 2, 15, 2))
sketch8.addConstraint(Sketcher.Constraint("Tangent", 15, 1, 11, 2))
sketch8.addConstraint(Sketcher.Constraint("Coincident", 16, 2, 17, 2))
sketch8.addConstraint(Sketcher.Constraint("Tangent", 17, 1, 18, 2))
sketch8.addConstraint(Sketcher.Constraint("Coincident", 18, 1, 19, 1))
sketch8.addConstraint(Sketcher.Constraint("Coincident", 19, 2, 20, 1))
sketch8.addConstraint(Sketcher.Constraint("Tangent", 20, 2, 21, 1))
sketch8.addConstraint(Sketcher.Constraint("Coincident", 21, 2, 16, 1))
sketch8.addConstraint(Sketcher.Constraint("Coincident", 2, 3, -1, 1))
sketch8.addConstraint(Sketcher.Constraint("Coincident", 5, 3, -1, 1))
sketch8.addConstraint(Sketcher.Constraint("Coincident", 6, 3, -1, 1))
sketch8.addConstraint(Sketcher.Constraint("Coincident", 8, 3, -1, 1))
sketch8.addConstraint(Sketcher.Constraint("Coincident", 12, 3, -1, 1))
sketch8.addConstraint(Sketcher.Constraint("Coincident", 14, 3, -1, 1))
sketch8.addConstraint(Sketcher.Constraint("Coincident", 16, 3, -1, 1))
sketch8.addConstraint(Sketcher.Constraint("Coincident", 19, 3, -1, 1))
sketch8.addConstraint(Sketcher.Constraint("Coincident", 3, 3, 0, 3))
sketch8.addConstraint(Sketcher.Constraint("Coincident", 9, 3, 7, 3))
sketch8.addConstraint(Sketcher.Constraint("Coincident", 13, 3, 11, 3))
sketch8.addConstraint(Sketcher.Constraint("Coincident", 20, 3, 17, 3))
sketch8.addConstraint(Sketcher.Constraint("Equal", 0, 1))
sketch8.addConstraint(Sketcher.Constraint("Equal", 3, 4))
sketch8.addConstraint(Sketcher.Constraint("Equal", 2, 5))
sketch8.addConstraint(Sketcher.Constraint("Equal", 5, 6))
sketch8.addConstraint(Sketcher.Constraint("Equal", 1, 7))
sketch8.addConstraint(Sketcher.Constraint("Equal", 6, 8))
sketch8.addConstraint(Sketcher.Constraint("Equal", 4, 9))
sketch8.addConstraint(Sketcher.Constraint("Equal", 9, 10))
sketch8.addConstraint(Sketcher.Constraint("Equal", 7, 11))
sketch8.addConstraint(Sketcher.Constraint("Equal", 8, 12))
sketch8.addConstraint(Sketcher.Constraint("Equal", 10, 13))
sketch8.addConstraint(Sketcher.Constraint("Equal", 12, 14))
sketch8.addConstraint(Sketcher.Constraint("Equal", 11, 15))
sketch8.addConstraint(Sketcher.Constraint("Equal", 14, 16))
sketch8.addConstraint(Sketcher.Constraint("Equal", 15, 17))
sketch8.addConstraint(Sketcher.Constraint("Equal", 17, 18))
sketch8.addConstraint(Sketcher.Constraint("Equal", 16, 19))
sketch8.addConstraint(Sketcher.Constraint("Equal", 13, 20))
sketch8.addConstraint(Sketcher.Constraint("Equal", 20, 21))
sketch8.addConstraint(Sketcher.Constraint("Symmetric", 7, 3, 11, 3, -1, 1))
sketch8.addConstraint(Sketcher.Constraint("Symmetric", 0, 3, 17, 3, -1, 1))
sketch8.addConstraint(Sketcher.Constraint("Symmetric", 0, 1, 17, 1, -1))
sketch8.addConstraint(Sketcher.Constraint("PointOnObject", 7, 3, -1))
sketch8.addConstraint(Sketcher.Constraint("PointOnObject", 9, 2, -1))
sketch8.addConstraint(Sketcher.Constraint("PointOnObject", 15, 1, -1))
sketch8.addConstraint(Sketcher.Constraint("Horizontal", 4, 3, 0, 1))
sketch8.addConstraint(Sketcher.Constraint("Horizontal", 0, 1, 3, 2))
sketch8.addConstraint(Sketcher.Constraint("Horizontal", 17, 1, 20, 2))
sketch8.addConstraint(Sketcher.Constraint("Radius", 0, Q("0.2 in")))
sketch8.addConstraint(Sketcher.Constraint("Radius", 2, Q("0.65 in")))
sketch8.addConstraint(Sketcher.Constraint("Radius", 3, Q("0.125 in")))
sketch8.addConstraint(Sketcher.Constraint("DistanceY", -1, 1, 0, 3, Q("0.713 in")))
sketch8.addConstraint(Sketcher.Constraint("DistanceX", -1, 1, 7, 3, Q("0.713 in")))
sketch8.setExpression("Constraints[62]", "Params.sketch8_radius")
sketch8.setExpression("Constraints[63]", "Params.sketch8_radius2")
sketch8.setExpression("Constraints[64]", "Params.sketch8_radius3")
pocket4 = body.newObject("PartDesign::Pocket", "Pocket003")
pocket4.Profile = sketch8
pocket4.setExpression("Length", "Params.pocket4_length")
pocket4.Reversed = True

doc.recompute()
